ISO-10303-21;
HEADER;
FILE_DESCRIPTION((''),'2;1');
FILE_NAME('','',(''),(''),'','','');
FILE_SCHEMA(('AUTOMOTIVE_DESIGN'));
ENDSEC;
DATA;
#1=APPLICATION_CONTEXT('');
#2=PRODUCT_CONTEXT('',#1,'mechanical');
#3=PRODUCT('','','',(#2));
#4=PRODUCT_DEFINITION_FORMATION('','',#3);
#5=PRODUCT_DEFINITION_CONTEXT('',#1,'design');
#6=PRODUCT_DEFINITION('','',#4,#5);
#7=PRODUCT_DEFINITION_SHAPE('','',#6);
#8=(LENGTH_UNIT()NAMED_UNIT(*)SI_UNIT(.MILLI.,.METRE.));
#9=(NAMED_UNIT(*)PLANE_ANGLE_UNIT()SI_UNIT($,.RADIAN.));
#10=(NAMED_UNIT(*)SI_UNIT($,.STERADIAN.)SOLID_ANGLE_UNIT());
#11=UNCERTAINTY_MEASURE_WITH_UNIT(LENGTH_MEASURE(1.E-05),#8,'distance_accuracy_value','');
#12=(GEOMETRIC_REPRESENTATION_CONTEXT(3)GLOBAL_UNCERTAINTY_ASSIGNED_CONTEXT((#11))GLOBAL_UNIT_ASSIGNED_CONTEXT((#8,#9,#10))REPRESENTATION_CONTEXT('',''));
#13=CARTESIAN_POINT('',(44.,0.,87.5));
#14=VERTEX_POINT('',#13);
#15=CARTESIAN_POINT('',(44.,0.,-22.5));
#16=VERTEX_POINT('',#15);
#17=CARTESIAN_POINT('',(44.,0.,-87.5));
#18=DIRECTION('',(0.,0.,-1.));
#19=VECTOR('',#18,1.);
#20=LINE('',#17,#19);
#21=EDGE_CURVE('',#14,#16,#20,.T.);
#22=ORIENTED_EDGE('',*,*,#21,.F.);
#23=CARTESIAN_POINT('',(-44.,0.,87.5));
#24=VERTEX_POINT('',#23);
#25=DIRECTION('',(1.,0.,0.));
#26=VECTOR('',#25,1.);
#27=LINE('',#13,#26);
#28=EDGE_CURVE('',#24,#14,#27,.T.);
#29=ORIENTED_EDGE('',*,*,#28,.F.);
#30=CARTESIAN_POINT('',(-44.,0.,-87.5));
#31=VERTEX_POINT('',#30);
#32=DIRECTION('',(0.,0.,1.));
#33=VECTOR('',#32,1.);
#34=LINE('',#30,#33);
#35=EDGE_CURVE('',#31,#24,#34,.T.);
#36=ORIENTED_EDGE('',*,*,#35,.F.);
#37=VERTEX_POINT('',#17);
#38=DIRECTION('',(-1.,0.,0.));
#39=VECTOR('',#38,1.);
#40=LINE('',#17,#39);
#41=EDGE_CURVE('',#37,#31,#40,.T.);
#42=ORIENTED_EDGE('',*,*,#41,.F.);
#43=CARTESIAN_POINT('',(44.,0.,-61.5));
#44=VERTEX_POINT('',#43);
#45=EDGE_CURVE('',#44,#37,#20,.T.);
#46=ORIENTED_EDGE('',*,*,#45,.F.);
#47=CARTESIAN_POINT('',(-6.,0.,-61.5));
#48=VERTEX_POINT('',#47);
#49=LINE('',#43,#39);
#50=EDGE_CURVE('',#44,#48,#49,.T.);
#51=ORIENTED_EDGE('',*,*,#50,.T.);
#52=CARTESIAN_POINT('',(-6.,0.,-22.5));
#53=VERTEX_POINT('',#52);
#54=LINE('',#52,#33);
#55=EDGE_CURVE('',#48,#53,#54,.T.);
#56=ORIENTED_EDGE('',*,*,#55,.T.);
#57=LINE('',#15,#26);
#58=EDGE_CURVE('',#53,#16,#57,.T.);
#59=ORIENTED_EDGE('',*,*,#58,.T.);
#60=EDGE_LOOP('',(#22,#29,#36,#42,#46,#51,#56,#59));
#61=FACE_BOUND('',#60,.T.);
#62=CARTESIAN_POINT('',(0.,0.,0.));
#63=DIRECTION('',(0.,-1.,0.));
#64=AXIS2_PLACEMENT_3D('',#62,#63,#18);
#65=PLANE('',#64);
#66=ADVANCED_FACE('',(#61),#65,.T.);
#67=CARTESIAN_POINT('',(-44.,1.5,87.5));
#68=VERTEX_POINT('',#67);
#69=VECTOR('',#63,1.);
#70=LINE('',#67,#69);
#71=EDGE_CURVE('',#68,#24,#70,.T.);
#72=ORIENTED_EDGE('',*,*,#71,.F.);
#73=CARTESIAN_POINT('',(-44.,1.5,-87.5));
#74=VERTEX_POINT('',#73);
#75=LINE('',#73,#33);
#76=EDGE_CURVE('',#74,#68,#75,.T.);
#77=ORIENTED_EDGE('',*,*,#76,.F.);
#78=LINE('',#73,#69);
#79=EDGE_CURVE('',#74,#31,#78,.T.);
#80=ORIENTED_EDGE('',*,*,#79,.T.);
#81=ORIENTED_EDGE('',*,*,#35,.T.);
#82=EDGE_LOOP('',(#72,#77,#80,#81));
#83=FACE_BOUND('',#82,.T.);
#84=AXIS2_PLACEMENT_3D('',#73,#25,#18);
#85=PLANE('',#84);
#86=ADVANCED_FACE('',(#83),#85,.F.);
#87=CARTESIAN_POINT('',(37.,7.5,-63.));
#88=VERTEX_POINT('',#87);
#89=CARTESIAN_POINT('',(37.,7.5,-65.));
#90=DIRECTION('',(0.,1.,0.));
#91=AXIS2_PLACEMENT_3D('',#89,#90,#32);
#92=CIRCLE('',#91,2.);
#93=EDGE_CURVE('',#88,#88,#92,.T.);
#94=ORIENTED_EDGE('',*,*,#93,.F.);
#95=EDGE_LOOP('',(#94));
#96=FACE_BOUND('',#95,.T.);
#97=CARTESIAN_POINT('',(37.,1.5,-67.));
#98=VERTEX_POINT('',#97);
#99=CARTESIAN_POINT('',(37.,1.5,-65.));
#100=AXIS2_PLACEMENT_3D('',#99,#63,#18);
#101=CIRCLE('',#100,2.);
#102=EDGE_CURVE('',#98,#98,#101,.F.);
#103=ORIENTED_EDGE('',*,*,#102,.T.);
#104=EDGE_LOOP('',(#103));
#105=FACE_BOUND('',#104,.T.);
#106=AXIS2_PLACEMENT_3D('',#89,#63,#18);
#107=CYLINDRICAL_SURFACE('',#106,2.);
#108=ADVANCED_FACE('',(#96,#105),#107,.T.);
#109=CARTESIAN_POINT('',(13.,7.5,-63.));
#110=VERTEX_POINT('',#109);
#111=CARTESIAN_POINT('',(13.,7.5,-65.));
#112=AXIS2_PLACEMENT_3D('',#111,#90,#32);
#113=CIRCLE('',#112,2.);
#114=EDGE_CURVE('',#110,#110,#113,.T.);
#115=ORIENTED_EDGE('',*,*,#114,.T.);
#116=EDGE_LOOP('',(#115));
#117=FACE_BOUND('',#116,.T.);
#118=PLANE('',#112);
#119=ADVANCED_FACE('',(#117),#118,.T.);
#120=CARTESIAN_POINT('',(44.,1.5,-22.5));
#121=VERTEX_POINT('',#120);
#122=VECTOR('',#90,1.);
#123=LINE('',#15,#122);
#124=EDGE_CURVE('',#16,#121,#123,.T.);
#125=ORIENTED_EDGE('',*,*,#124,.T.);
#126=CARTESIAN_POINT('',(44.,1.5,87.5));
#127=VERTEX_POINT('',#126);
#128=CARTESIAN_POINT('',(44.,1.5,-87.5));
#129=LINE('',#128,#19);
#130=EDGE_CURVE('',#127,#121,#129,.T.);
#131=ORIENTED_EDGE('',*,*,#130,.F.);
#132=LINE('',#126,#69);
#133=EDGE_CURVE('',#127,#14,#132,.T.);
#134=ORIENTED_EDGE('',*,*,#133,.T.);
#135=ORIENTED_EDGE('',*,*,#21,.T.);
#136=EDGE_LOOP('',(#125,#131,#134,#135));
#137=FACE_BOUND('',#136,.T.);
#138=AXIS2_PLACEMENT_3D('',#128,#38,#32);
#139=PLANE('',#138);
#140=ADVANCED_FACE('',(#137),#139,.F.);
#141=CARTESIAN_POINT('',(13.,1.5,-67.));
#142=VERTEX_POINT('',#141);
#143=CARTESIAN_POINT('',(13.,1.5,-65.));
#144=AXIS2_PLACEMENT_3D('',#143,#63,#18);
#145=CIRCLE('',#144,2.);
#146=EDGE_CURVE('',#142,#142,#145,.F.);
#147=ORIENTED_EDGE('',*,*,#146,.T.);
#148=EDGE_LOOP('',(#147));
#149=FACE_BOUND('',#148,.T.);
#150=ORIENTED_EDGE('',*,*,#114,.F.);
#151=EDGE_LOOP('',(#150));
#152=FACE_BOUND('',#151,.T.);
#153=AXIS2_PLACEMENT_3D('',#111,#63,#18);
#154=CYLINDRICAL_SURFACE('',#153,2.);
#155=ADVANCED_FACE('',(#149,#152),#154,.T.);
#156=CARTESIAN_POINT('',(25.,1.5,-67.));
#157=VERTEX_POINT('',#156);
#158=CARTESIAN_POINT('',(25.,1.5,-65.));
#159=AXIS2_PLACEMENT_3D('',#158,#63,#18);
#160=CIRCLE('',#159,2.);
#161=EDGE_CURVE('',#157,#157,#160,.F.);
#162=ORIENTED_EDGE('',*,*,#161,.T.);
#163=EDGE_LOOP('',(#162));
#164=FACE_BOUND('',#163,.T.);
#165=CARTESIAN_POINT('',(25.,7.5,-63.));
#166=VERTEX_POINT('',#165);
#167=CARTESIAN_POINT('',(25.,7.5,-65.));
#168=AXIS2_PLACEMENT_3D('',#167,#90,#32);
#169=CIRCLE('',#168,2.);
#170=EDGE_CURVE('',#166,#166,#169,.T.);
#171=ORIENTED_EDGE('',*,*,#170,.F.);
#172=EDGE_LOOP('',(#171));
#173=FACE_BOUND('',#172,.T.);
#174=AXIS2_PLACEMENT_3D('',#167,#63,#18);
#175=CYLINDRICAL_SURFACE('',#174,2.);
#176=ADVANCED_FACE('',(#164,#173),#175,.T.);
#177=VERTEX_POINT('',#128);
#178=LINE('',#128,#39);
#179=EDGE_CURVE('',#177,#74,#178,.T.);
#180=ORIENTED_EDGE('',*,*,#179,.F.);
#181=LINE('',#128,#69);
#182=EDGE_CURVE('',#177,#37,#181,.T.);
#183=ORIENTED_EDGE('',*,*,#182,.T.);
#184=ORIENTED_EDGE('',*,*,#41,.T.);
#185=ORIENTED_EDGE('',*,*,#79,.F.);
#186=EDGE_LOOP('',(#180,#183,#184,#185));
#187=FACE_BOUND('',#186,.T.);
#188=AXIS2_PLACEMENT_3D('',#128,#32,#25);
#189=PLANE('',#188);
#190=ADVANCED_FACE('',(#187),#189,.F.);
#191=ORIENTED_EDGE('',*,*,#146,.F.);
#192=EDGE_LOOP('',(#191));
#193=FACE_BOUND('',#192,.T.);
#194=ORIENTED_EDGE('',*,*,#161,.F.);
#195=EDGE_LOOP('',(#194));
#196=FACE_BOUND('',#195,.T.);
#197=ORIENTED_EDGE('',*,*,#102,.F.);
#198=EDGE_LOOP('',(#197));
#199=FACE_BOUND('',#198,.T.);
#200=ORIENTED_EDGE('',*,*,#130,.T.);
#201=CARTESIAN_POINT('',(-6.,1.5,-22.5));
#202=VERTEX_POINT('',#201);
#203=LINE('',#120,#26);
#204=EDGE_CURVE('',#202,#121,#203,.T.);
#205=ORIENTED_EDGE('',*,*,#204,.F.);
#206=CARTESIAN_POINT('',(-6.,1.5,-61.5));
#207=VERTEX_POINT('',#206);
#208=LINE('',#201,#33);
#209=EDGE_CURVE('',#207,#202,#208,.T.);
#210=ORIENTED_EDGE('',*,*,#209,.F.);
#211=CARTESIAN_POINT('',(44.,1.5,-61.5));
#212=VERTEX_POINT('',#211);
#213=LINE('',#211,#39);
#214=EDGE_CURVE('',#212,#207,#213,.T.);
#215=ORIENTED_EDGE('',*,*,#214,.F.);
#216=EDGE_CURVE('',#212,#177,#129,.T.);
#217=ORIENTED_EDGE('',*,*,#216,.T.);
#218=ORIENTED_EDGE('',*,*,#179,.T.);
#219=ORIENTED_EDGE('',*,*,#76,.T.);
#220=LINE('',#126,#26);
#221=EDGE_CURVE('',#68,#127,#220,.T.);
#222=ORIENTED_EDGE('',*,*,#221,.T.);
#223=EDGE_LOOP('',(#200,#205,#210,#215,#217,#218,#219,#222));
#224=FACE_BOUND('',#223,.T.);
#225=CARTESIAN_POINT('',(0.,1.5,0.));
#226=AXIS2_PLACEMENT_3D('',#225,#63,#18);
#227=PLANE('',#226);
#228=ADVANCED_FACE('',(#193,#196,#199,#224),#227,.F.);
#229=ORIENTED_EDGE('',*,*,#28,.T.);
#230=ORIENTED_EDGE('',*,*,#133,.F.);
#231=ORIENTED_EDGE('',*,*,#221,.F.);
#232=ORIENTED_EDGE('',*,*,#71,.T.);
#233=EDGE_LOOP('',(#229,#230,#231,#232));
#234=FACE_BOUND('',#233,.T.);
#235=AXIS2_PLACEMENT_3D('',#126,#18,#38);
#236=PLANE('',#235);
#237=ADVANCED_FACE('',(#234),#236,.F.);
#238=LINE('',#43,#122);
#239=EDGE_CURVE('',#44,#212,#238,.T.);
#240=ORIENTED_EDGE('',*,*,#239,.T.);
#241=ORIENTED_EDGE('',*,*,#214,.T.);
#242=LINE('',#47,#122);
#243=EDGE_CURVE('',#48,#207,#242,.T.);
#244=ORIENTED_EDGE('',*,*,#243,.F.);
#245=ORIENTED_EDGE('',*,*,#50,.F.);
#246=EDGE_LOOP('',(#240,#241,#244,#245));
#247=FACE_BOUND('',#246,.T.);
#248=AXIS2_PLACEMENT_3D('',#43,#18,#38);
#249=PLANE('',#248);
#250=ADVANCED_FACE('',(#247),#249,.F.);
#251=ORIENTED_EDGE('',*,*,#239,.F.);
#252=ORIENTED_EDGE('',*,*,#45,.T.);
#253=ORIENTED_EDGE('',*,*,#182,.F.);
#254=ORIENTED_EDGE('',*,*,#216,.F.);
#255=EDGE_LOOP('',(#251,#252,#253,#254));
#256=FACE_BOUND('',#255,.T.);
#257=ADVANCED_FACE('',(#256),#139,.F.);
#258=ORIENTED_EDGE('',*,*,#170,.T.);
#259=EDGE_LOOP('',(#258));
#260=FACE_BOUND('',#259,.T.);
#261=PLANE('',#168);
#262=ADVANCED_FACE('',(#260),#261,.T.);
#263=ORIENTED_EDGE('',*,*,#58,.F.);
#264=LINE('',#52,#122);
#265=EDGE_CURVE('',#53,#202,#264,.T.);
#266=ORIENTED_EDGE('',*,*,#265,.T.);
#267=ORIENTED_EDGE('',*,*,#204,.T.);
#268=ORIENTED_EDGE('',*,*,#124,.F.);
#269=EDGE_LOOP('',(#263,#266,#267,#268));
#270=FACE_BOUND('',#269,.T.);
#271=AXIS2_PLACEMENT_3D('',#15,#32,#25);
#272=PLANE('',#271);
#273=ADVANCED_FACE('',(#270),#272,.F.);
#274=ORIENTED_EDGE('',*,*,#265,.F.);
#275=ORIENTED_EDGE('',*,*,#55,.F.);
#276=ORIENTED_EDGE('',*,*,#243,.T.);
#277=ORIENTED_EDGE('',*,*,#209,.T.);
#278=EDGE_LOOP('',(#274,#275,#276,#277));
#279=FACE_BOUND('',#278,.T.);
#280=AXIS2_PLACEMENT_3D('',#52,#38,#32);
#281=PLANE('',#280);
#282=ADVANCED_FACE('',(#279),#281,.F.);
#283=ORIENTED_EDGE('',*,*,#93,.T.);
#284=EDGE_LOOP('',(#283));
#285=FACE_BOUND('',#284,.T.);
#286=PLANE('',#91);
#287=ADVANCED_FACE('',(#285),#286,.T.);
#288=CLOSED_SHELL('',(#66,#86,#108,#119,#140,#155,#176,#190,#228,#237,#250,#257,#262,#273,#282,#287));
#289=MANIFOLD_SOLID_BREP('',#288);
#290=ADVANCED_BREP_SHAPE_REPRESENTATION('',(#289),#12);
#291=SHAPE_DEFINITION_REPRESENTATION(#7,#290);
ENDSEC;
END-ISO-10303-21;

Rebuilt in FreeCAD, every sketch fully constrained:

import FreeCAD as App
import Part
import Sketcher


def add_polygon(sketch, points):
    """Adds a closed chain of lines whose ends are joined by coincident constraints."""
    first, n = sketch.GeometryCount, len(points)
    for a, b in zip(points, points[1:] + points[:1]):
        sketch.addGeometry(Part.LineSegment(App.Vector(*a, 0), App.Vector(*b, 0)), False)
    for i in range(n):
        sketch.addConstraint(Sketcher.Constraint("Coincident", first + i, 2, first + (i + 1) % n, 1))

doc = App.newDocument("Part")
params = doc.addObject("Spreadsheet::Sheet", "Params")
for row, (alias, value) in enumerate([
    ("sketch1_width", "88 mm"),
    ("sketch1_height", "175 mm"),
    ("pad1_length", "1.5 mm"),
    ("sketch2_width", "50 mm"),
    ("sketch2_height", "39 mm"),
    ("pocket1_length", "1.5 mm"),
    ("sketch3_diameter", "4 mm"),
    ("pad2_length", "6 mm"),
], start=1):
    params.set(f"A{row}", alias)
    params.set(f"B{row}", "=" + value)
    params.setAlias(f"B{row}", alias)

body = doc.addObject("PartDesign::Body", "Body")

# Sketch on XZ plane
sketch1 = doc.addObject("Sketcher::SketchObject", "Sketch")
body.addObject(sketch1)
sketch1.AttachmentSupport = (doc.XZ_Plane, [""])
sketch1.MapMode = "FlatFace"
add_polygon(sketch1, [(-44, -88), (-44, 88), (44, 88), (44, -88)])  # lines 0-3
sketch1.addConstraint(Sketcher.Constraint("Vertical", 0))
sketch1.addConstraint(Sketcher.Constraint("Horizontal", 1))
sketch1.addConstraint(Sketcher.Constraint("Vertical", 2))
sketch1.addConstraint(Sketcher.Constraint("Horizontal", 3))
sketch1.addConstraint(Sketcher.Constraint("Symmetric", 0, 2, 2, 2, -1, 1))
sketch1.addConstraint(Sketcher.Constraint("DistanceX", 1, 1, 1, 2, 88.0))
sketch1.addConstraint(Sketcher.Constraint("DistanceY", 0, 1, 0, 2, 175.0))
sketch1.setExpression("Constraints[9]", "Params.sketch1_width")
sketch1.setExpression("Constraints[10]", "Params.sketch1_height")
pad1 = doc.addObject("PartDesign::Pad", "Pad")
body.addObject(pad1)
pad1.Profile = sketch1
pad1.setExpression("Length", "Params.pad1_length")
pad1.Reversed = True

# Sketch on XZ plane
sketch2 = doc.addObject("Sketcher::SketchObject", "Sketch001")
body.addObject(sketch2)
sketch2.AttachmentSupport = (doc.XZ_Plane, [""])
sketch2.MapMode = "FlatFace"
sketch2.AttachmentOffset = App.Placement(App.Vector(0, 0, -1.5), App.Rotation())
add_polygon(sketch2, [(-6, -62), (-6, -22), (44, -22), (44, -62)])  # lines 0-3
sketch2.addConstraint(Sketcher.Constraint("Vertical", 0))
sketch2.addConstraint(Sketcher.Constraint("Horizontal", 1))
sketch2.addConstraint(Sketcher.Constraint("Vertical", 2))
sketch2.addConstraint(Sketcher.Constraint("Horizontal", 3))
sketch2.addConstraint(Sketcher.Constraint("DistanceX", 1, 1, 1, 2, 50.0))
sketch2.addConstraint(Sketcher.Constraint("DistanceY", 0, 1, 0, 2, 39.0))
sketch2.addConstraint(Sketcher.Constraint("DistanceX", 0, 2, -1, 1, 6.0))
sketch2.addConstraint(Sketcher.Constraint("DistanceY", 0, 2, -1, 1, 22.5))
sketch2.setExpression("Constraints[8]", "Params.sketch2_width")
sketch2.setExpression("Constraints[9]", "Params.sketch2_height")
pocket1 = doc.addObject("PartDesign::Pocket", "Pocket")
body.addObject(pocket1)
pocket1.Profile = sketch2
pocket1.setExpression("Length", "Params.pocket1_length")
pocket1.Reversed = True

# Sketch on XZ plane
sketch3 = doc.addObject("Sketcher::SketchObject", "Sketch002")
body.addObject(sketch3)
sketch3.AttachmentSupport = (doc.XZ_Plane, [""])
sketch3.MapMode = "FlatFace"
sketch3.AttachmentOffset = App.Placement(App.Vector(0, 0, -1.5), App.Rotation())
sketch3.addGeometry(Part.Circle(App.Vector(37, -65, 0), App.Vector(0, 0, 1), 2), False)
sketch3.addGeometry(Part.Circle(App.Vector(25, -65, 0), App.Vector(0, 0, 1), 2), False)
sketch3.addGeometry(Part.Circle(App.Vector(13, -65, 0), App.Vector(0, 0, 1), 2), False)
sketch3.addConstraint(Sketcher.Constraint("Equal", 0, 1))
sketch3.addConstraint(Sketcher.Constraint("Equal", 1, 2))
sketch3.addConstraint(Sketcher.Constraint("Horizontal", 0, 3, 1, 3))
sketch3.addConstraint(Sketcher.Constraint("Horizontal", 1, 3, 2, 3))
sketch3.addConstraint(Sketcher.Constraint("Diameter", 0, 4.0))
sketch3.addConstraint(Sketcher.Constraint("DistanceX", -1, 1, 0, 3, 37.0))
sketch3.addConstraint(Sketcher.Constraint("DistanceY", 0, 3, -1, 1, 65.0))
sketch3.addConstraint(Sketcher.Constraint("DistanceX", -1, 1, 1, 3, 25.0))
sketch3.addConstraint(Sketcher.Constraint("DistanceX", -1, 1, 2, 3, 13.0))
sketch3.setExpression("Constraints[4]", "Params.sketch3_diameter")
pad2 = doc.addObject("PartDesign::Pad", "Pad001")
body.addObject(pad2)
pad2.Profile = sketch3
pad2.setExpression("Length", "Params.pad2_length")
pad2.Reversed = True

doc.recompute()
